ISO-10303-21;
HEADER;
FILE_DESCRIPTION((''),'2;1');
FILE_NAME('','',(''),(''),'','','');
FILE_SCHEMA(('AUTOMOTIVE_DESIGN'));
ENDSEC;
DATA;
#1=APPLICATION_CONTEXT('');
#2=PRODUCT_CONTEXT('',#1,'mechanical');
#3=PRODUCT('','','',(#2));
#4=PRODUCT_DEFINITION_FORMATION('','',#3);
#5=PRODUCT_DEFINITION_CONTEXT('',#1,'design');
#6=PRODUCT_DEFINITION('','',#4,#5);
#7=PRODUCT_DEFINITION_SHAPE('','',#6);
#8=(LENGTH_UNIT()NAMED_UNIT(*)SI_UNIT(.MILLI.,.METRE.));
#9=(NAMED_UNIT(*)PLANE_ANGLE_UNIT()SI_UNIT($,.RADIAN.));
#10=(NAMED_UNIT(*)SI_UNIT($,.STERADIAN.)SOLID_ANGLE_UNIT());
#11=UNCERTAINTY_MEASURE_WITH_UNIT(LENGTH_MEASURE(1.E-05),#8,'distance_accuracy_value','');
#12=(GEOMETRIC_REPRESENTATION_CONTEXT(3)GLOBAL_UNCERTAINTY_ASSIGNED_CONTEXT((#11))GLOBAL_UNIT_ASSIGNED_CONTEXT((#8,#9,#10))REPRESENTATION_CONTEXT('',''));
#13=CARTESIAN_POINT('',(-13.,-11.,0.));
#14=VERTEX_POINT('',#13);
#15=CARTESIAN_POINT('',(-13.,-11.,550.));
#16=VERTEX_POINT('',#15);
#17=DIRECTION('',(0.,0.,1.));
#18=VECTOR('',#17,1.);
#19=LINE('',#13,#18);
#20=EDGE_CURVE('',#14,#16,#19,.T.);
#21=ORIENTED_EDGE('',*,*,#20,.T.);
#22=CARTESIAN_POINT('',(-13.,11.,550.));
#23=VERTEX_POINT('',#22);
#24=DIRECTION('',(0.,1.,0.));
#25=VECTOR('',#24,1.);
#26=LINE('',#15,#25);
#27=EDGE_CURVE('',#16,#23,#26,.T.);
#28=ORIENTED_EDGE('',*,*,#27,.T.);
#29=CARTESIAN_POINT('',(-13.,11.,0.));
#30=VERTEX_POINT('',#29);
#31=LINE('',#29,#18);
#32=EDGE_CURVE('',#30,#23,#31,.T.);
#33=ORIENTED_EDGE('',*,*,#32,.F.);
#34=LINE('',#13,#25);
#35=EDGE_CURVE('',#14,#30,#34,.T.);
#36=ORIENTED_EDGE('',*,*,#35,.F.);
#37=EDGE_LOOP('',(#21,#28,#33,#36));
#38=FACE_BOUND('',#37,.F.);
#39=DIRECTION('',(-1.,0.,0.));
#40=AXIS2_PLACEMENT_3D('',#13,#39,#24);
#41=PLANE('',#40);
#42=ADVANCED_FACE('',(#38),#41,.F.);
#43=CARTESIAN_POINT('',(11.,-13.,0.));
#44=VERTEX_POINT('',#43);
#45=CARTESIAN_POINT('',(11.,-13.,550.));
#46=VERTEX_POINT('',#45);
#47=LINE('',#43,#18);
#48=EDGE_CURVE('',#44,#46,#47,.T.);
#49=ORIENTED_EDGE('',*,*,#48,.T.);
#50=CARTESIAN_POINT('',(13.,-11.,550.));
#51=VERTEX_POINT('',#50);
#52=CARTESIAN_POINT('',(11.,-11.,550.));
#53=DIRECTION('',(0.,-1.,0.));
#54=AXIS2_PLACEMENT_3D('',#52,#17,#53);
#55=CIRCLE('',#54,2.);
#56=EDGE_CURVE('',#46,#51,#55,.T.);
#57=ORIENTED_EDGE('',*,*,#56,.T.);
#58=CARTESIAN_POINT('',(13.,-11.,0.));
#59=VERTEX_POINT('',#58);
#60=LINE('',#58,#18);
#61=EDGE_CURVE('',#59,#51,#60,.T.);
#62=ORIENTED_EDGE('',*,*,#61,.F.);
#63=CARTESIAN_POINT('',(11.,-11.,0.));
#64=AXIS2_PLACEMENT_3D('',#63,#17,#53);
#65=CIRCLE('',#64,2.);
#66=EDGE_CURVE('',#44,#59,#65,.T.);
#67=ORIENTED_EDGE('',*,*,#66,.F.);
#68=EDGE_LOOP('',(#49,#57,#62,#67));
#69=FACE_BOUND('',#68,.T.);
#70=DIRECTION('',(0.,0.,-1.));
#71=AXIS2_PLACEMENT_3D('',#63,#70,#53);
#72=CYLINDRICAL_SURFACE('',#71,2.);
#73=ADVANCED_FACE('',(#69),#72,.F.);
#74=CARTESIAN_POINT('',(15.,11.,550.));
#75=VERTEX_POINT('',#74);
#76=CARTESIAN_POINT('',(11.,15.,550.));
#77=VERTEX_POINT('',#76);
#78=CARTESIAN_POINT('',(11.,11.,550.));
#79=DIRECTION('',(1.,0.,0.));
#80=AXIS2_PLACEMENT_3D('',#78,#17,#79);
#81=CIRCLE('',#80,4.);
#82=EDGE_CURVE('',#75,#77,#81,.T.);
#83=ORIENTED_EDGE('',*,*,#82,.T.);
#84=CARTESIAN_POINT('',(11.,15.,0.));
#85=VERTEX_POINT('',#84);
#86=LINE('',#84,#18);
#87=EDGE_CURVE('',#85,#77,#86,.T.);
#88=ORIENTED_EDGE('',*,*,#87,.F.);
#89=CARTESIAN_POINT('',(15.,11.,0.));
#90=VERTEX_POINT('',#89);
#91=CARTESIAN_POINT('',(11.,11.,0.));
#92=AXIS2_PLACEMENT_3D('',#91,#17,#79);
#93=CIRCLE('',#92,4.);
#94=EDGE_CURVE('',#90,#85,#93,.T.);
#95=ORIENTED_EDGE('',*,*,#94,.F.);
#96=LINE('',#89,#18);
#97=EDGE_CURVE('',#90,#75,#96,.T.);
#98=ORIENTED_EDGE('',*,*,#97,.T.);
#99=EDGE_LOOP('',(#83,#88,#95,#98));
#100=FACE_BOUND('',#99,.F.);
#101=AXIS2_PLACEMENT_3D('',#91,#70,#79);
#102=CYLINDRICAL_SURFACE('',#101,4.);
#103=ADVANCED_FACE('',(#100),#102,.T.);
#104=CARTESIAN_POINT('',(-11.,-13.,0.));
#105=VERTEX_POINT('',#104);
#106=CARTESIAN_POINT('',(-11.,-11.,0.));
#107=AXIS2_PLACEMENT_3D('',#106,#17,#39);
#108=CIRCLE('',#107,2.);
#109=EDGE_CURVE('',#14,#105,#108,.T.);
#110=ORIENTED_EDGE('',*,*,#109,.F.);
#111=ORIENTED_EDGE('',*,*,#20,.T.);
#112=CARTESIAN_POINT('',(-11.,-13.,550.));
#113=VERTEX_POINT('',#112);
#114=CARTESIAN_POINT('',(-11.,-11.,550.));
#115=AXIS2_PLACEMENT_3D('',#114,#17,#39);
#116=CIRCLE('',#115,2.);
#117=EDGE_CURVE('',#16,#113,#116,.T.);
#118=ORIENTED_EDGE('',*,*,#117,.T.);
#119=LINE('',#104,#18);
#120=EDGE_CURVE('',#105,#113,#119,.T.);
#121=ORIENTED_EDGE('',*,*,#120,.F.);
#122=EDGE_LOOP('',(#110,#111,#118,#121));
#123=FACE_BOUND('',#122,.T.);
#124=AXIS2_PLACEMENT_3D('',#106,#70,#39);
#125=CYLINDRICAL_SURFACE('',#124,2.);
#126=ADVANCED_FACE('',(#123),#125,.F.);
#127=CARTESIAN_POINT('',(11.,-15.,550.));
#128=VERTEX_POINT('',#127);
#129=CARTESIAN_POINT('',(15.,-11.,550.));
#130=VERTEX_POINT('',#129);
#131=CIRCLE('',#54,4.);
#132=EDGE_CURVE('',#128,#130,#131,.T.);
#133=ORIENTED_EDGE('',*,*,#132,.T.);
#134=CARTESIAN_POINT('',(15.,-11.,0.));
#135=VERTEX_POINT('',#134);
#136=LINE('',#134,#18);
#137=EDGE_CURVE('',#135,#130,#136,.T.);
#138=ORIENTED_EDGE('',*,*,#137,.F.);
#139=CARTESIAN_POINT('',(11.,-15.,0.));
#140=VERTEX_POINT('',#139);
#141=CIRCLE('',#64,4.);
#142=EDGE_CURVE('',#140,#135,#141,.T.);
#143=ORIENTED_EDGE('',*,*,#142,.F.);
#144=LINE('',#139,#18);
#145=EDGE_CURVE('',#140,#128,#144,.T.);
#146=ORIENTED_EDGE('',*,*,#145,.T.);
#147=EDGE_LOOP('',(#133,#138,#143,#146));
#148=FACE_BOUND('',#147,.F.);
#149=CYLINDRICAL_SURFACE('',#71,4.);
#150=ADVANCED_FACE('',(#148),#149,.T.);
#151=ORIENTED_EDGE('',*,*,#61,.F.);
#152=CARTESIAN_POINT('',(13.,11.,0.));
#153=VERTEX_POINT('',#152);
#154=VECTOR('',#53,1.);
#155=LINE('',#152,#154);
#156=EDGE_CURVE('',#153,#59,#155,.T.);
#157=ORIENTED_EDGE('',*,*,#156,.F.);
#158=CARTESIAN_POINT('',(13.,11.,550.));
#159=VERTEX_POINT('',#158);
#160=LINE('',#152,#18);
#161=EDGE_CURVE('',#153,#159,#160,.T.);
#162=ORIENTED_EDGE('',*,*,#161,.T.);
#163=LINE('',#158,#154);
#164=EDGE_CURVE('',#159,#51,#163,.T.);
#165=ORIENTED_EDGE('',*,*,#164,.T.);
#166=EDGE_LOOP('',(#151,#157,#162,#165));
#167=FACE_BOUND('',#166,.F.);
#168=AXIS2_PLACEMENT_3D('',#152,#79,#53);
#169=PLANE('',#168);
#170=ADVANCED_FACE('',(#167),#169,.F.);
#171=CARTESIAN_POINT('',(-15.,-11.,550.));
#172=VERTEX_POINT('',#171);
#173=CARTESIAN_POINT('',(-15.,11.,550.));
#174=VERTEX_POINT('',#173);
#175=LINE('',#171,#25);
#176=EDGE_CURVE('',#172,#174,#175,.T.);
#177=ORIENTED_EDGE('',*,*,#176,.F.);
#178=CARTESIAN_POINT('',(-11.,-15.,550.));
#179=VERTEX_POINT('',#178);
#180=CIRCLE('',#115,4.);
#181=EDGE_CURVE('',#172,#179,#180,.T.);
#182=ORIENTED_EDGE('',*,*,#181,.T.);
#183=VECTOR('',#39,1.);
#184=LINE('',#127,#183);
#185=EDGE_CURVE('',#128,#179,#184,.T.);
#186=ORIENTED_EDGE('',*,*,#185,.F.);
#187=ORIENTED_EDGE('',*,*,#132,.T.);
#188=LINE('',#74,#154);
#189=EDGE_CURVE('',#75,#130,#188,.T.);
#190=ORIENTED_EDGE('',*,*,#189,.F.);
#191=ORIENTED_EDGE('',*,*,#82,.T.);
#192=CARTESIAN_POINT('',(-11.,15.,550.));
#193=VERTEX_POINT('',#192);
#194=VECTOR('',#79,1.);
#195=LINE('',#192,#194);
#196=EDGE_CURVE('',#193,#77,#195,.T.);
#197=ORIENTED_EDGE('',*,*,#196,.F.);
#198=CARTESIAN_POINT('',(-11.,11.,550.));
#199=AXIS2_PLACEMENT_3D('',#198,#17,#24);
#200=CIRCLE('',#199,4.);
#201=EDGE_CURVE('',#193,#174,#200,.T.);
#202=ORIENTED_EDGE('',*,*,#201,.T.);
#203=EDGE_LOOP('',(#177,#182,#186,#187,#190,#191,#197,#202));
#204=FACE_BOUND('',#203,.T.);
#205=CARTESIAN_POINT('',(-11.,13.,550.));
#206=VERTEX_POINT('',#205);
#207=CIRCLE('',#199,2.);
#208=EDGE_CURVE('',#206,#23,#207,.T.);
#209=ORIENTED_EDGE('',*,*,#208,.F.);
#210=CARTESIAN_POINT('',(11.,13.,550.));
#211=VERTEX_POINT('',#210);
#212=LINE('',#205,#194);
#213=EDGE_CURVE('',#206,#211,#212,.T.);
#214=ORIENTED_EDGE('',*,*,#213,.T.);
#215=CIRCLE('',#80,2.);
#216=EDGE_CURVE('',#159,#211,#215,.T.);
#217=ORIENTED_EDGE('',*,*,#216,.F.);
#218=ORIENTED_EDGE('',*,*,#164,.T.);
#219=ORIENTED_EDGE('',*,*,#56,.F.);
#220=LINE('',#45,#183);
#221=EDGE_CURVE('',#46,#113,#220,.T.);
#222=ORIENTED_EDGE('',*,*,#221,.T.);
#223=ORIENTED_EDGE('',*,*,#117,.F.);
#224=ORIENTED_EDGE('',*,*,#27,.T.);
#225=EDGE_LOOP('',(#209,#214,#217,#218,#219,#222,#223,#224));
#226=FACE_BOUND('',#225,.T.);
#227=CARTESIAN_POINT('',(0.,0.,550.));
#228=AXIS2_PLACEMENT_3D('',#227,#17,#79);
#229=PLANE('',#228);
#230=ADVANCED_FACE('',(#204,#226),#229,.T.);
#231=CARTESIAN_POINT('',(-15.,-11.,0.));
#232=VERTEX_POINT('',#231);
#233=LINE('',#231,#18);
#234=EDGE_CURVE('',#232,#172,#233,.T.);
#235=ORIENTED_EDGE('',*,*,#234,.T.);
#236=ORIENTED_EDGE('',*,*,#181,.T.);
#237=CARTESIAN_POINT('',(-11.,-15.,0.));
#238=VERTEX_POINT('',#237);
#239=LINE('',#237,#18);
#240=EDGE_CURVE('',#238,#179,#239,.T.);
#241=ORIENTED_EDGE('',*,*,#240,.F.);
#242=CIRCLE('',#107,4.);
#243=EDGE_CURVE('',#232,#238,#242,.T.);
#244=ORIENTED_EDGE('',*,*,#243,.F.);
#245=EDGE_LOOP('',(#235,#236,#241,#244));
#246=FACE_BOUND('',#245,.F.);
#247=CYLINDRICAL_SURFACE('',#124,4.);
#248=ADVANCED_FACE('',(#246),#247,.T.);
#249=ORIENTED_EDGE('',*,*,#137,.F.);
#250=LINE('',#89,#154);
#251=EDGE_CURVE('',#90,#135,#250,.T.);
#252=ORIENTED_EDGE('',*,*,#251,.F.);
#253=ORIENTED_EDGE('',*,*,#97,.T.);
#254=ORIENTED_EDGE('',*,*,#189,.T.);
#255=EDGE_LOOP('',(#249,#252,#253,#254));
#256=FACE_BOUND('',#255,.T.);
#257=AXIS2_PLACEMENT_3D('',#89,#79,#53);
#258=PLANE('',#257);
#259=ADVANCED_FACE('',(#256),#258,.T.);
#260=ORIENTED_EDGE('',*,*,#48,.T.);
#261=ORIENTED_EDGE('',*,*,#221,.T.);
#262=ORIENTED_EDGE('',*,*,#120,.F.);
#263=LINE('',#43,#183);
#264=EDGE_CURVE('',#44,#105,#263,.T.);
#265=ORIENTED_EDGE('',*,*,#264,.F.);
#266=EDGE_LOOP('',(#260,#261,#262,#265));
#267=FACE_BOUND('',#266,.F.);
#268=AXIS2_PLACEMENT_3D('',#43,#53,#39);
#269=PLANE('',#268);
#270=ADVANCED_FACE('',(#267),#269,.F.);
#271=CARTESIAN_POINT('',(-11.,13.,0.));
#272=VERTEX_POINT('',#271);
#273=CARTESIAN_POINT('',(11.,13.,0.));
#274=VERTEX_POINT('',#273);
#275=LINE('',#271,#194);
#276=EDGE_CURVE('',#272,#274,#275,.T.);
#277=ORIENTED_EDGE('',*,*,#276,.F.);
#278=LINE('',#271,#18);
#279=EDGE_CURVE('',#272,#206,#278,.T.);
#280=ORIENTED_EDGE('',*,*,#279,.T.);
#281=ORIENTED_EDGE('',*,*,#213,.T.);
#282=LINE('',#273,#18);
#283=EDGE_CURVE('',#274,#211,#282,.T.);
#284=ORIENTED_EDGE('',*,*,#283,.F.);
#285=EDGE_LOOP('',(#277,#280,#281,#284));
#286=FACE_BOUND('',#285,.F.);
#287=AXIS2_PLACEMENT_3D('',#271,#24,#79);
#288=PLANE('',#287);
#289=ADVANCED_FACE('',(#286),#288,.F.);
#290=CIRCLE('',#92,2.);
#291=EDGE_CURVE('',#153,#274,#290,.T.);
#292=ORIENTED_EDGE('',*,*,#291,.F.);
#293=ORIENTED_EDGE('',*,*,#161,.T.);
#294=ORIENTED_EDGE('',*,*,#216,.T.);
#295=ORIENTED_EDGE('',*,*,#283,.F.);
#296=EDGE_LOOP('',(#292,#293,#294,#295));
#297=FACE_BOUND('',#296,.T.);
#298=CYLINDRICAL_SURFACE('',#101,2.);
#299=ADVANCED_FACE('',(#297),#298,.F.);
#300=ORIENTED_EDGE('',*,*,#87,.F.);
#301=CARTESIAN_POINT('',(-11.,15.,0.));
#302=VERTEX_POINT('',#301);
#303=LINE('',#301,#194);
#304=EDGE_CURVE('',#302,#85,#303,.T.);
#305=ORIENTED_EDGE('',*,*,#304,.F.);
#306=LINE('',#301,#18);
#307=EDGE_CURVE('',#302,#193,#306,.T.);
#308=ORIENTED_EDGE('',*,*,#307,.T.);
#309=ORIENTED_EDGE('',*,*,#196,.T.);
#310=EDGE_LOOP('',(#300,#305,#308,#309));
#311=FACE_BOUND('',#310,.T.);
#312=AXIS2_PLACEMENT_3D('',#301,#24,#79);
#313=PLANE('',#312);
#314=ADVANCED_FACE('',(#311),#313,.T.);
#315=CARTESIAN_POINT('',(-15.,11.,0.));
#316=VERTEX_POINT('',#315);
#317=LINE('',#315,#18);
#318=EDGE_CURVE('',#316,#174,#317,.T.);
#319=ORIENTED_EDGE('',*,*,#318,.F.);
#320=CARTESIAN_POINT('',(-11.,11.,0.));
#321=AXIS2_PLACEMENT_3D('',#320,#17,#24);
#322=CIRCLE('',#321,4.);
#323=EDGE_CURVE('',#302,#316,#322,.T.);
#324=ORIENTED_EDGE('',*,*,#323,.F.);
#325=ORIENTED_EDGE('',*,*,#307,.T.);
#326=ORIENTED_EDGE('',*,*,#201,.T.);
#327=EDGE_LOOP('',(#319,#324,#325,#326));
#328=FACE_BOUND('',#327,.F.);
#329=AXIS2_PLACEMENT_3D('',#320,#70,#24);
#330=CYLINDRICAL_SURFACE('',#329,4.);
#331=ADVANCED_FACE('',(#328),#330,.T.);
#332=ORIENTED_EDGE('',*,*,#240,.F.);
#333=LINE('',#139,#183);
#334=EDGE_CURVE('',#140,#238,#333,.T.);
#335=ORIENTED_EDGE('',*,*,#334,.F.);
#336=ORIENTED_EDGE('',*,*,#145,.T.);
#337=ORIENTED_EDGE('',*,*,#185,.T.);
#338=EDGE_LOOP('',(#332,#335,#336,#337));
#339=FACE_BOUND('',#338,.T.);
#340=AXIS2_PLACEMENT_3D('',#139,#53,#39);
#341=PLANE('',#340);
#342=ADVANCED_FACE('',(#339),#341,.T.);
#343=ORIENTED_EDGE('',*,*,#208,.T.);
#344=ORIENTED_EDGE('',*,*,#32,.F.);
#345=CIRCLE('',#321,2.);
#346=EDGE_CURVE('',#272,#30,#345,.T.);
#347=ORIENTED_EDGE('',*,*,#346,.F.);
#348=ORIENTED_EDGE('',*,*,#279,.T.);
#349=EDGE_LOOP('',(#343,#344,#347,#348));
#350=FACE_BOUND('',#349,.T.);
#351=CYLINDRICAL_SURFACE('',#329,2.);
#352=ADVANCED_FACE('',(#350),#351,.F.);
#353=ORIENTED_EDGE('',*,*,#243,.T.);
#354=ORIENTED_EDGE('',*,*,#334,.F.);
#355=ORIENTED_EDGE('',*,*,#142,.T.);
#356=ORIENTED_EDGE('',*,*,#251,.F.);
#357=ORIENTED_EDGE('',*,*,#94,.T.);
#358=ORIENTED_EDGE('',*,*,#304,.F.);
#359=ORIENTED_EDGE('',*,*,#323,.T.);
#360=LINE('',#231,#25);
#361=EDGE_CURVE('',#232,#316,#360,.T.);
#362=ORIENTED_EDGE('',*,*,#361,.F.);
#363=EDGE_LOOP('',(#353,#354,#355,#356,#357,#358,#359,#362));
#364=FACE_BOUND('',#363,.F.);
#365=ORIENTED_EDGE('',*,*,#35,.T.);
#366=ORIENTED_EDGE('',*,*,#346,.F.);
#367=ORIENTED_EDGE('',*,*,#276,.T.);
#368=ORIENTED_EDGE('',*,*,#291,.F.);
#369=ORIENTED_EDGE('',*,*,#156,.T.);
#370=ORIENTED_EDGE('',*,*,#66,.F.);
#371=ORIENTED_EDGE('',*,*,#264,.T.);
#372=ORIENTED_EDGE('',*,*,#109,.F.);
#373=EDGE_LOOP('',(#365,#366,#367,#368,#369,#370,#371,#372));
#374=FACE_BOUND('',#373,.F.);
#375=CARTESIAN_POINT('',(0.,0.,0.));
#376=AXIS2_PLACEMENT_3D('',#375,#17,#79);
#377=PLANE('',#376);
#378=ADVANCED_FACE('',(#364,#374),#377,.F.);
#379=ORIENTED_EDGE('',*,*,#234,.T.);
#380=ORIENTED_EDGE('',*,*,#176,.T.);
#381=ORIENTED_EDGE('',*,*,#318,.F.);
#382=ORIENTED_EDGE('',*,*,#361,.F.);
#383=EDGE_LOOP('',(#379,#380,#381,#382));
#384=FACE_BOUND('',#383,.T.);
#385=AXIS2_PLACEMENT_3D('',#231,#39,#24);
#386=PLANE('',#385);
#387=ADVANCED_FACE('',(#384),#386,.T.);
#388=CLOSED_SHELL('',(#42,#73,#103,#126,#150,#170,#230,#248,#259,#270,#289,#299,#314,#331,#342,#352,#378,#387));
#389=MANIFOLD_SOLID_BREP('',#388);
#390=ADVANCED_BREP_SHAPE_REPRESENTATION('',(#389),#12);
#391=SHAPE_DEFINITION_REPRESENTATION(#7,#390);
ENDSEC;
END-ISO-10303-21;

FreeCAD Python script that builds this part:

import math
import FreeCAD as App
import Part
import Sketcher

V = App.Vector
Q = App.Units.Quantity

doc = App.newDocument("Part")
body = doc.addObject("PartDesign::Body", "Body")

# Sketch on XY plane
sketch1 = doc.addObject("Sketcher::SketchObject", "Sketch")
body.addObject(sketch1)
sketch1.AttachmentSupport = (doc.XY_Plane, [""])
sketch1.MapMode = "FlatFace"
sketch1.addGeometry(Part.LineSegment(V(-15, 11, 0), V(-15, -11, 0)), False)
sketch1.addGeometry(Part.ArcOfCircle(Part.Circle(V(-11, -11, 0), V(0, 0, 1), 4), math.radians(180), math.radians(270)), False)
sketch1.addGeometry(Part.LineSegment(V(-11, -15, 0), V(11, -15, 0)), False)
sketch1.addGeometry(Part.ArcOfCircle(Part.Circle(V(11, -11, 0), V(0, 0, 1), 4), math.radians(-90), math.radians(0)), False)
sketch1.addGeometry(Part.LineSegment(V(15, -11, 0), V(15, 11, 0)), False)
sketch1.addGeometry(Part.ArcOfCircle(Part.Circle(V(11, 11, 0), V(0, 0, 1), 4), math.radians(0), math.radians(90)), False)
sketch1.addGeometry(Part.LineSegment(V(11, 15, 0), V(-11, 15, 0)), False)
sketch1.addGeometry(Part.ArcOfCircle(Part.Circle(V(-11, 11, 0), V(0, 0, 1), 4), math.radians(90), math.radians(180)), False)
sketch1.addGeometry(Part.ArcOfCircle(Part.Circle(V(-11, 11, 0), V(0, 0, 1), 2), math.radians(90), math.radians(180)), False)
sketch1.addGeometry(Part.LineSegment(V(-11, 13, 0), V(11, 13, 0)), False)
sketch1.addGeometry(Part.ArcOfCircle(Part.Circle(V(11, 11, 0), V(0, 0, 1), 2), math.radians(0), math.radians(90)), False)
sketch1.addGeometry(Part.LineSegment(V(13, 11, 0), V(13, -11, 0)), False)
sketch1.addGeometry(Part.ArcOfCircle(Part.Circle(V(11, -11, 0), V(0, 0, 1), 2), math.radians(-90), math.radians(0)), False)
sketch1.addGeometry(Part.LineSegment(V(11, -13, 0), V(-11, -13, 0)), False)
sketch1.addGeometry(Part.ArcOfCircle(Part.Circle(V(-11, -11, 0), V(0, 0, 1), 2), math.radians(180), math.radians(270)), False)
sketch1.addGeometry(Part.LineSegment(V(-13, -11, 0), V(-13, 11, 0)), False)
sketch1.addConstraint(Sketcher.Constraint("Tangent", 0, 2, 1, 1))
sketch1.addConstraint(Sketcher.Constraint("Tangent", 1, 2, 2, 1))
sketch1.addConstraint(Sketcher.Constraint("Tangent", 2, 2, 3, 1))
sketch1.addConstraint(Sketcher.Constraint("Tangent", 3, 2, 4, 1))
sketch1.addConstraint(Sketcher.Constraint("Tangent", 4, 2, 5, 1))
sketch1.addConstraint(Sketcher.Constraint("Tangent", 5, 2, 6, 1))
sketch1.addConstraint(Sketcher.Constraint("Tangent", 6, 2, 7, 1))
sketch1.addConstraint(Sketcher.Constraint("Tangent", 7, 2, 0, 1))
sketch1.addConstraint(Sketcher.Constraint("Tangent", 8, 1, 9, 1))
sketch1.addConstraint(Sketcher.Constraint("Tangent", 9, 2, 10, 2))
sketch1.addConstraint(Sketcher.Constraint("Tangent", 10, 1, 11, 1))
sketch1.addConstraint(Sketcher.Constraint("Tangent", 11, 2, 12, 2))
sketch1.addConstraint(Sketcher.Constraint("Tangent", 12, 1, 13, 1))
sketch1.addConstraint(Sketcher.Constraint("Tangent", 13, 2, 14, 2))
sketch1.addConstraint(Sketcher.Constraint("Tangent", 14, 1, 15, 1))
sketch1.addConstraint(Sketcher.Constraint("Tangent", 15, 2, 8, 2))
sketch1.addConstraint(Sketcher.Constraint("Vertical", 0))
sketch1.addConstraint(Sketcher.Constraint("Horizontal", 2))
sketch1.addConstraint(Sketcher.Constraint("Vertical", 4))
sketch1.addConstraint(Sketcher.Constraint("Horizontal", 6))
sketch1.addConstraint(Sketcher.Constraint("Horizontal", 9))
sketch1.addConstraint(Sketcher.Constraint("Vertical", 11))
sketch1.addConstraint(Sketcher.Constraint("Horizontal", 13))
sketch1.addConstraint(Sketcher.Constraint("Vertical", 15))
sketch1.addConstraint(Sketcher.Constraint("Coincident", 8, 3, 7, 3))
sketch1.addConstraint(Sketcher.Constraint("Coincident", 10, 3, 5, 3))
sketch1.addConstraint(Sketcher.Constraint("Coincident", 12, 3, 3, 3))
sketch1.addConstraint(Sketcher.Constraint("Equal", 1, 3))
sketch1.addConstraint(Sketcher.Constraint("Equal", 3, 5))
sketch1.addConstraint(Sketcher.Constraint("Equal", 5, 7))
sketch1.addConstraint(Sketcher.Constraint("Equal", 12, 14))
sketch1.addConstraint(Sketcher.Constraint("Symmetric", 1, 3, 5, 3, -1, 1))
sketch1.addConstraint(Sketcher.Constraint("Equal", 13, 0))
sketch1.addConstraint(Sketcher.Constraint("Radius", 1, Q("4 mm")))
sketch1.addConstraint(Sketcher.Constraint("Radius", 8, Q("2 mm")))
sketch1.addConstraint(Sketcher.Constraint("DistanceX", 0, 2, -1, 1, Q("15 mm")))
pad1 = doc.addObject("PartDesign::Pad", "Pad")
body.addObject(pad1)
pad1.Profile = sketch1
pad1.Length = 550

doc.recompute()
